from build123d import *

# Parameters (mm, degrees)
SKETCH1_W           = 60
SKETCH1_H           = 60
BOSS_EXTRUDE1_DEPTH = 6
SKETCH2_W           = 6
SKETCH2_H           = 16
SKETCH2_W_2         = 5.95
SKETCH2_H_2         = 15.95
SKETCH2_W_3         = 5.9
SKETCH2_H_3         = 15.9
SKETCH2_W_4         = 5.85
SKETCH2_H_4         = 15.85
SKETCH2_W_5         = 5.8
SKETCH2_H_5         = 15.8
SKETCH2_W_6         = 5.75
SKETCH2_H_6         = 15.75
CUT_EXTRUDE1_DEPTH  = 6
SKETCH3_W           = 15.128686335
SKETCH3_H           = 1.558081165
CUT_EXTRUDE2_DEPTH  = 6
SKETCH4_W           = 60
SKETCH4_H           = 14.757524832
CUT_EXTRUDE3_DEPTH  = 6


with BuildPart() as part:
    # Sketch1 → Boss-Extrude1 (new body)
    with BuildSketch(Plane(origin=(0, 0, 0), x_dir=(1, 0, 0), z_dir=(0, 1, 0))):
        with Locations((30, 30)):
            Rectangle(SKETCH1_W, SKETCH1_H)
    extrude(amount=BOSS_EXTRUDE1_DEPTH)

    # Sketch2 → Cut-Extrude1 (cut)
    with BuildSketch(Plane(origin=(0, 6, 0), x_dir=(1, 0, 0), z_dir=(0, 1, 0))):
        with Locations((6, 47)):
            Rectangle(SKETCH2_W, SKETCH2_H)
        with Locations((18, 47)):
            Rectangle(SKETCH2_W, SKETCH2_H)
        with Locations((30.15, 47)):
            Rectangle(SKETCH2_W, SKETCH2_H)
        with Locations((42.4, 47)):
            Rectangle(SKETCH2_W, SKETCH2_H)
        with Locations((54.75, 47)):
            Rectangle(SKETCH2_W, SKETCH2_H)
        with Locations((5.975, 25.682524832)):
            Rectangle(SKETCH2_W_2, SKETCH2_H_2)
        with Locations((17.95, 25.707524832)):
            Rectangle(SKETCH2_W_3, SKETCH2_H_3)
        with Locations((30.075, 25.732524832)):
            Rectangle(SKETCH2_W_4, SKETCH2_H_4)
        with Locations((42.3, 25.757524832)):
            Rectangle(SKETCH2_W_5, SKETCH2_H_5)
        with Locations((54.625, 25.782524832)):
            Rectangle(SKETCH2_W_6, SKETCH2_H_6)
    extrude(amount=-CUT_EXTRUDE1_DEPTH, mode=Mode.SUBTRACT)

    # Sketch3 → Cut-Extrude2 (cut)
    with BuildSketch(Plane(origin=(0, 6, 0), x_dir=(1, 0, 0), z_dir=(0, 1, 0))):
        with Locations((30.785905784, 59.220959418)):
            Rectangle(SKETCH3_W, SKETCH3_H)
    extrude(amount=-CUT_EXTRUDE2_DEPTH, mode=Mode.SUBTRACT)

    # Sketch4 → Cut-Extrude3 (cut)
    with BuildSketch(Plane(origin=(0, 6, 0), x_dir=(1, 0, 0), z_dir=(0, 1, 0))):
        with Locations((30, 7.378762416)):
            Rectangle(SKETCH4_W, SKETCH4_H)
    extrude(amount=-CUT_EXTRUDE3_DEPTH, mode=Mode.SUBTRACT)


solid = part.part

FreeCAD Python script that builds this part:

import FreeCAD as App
import Part
import Sketcher
Q = App.Units.Quantity


def add_polygon(sketch, points):
    """Adds a closed chain of lines whose ends are joined by coincident constraints."""
    first, n = sketch.GeometryCount, len(points)
    for a, b in zip(points, points[1:] + points[:1]):
        sketch.addGeometry(Part.LineSegment(App.Vector(*a, 0), App.Vector(*b, 0)), False)
    for i in range(n):
        sketch.addConstraint(Sketcher.Constraint("Coincident", first + i, 2, first + (i + 1) % n, 1))

doc = App.newDocument("Part")
body = doc.addObject("PartDesign::Body", "Body")

sketch1 = doc.addObject("Sketcher::SketchObject", "Sketch")
body.addObject(sketch1)
sketch1.AttachmentSupport = (doc.XZ_Plane, [""])
sketch1.MapMode = "FlatFace"
add_polygon(sketch1, [(0, -60), (0, 0), (60, 0), (60, -60)])
sketch1.addConstraint([
    Sketcher.Constraint("Vertical", 0),
    Sketcher.Constraint("Horizontal", 1),
    Sketcher.Constraint("Vertical", 2),
    Sketcher.Constraint("Horizontal", 3),
    Sketcher.Constraint("Coincident", 0, 2, -1, 1),
    Sketcher.Constraint("Equal", 3, 0),
    Sketcher.Constraint("DistanceX", 1, 1, 1, 2, Q("60 mm")),
])
pad1 = doc.addObject("PartDesign::Pad", "Pad")
body.addObject(pad1)
pad1.Profile = sketch1
pad1.Length = 6
pad1.Reversed = True

sketch2 = doc.addObject("Sketcher::SketchObject", "Sketch001")
body.addObject(sketch2)
sketch2.AttachmentSupport = (doc.XZ_Plane, [""])
sketch2.MapMode = "FlatFace"
sketch2.AttachmentOffset = App.Placement(App.Vector(0, 0, -6), App.Rotation())
add_polygon(sketch2, [(3, -55), (3, -39), (9, -39), (9, -55)])
add_polygon(sketch2, [(15, -55), (15, -39), (21, -39), (21, -55)])
add_polygon(sketch2, [(27.15, -55), (27.15, -39), (33.15, -39), (33.15, -55)])
add_polygon(sketch2, [(39.4, -55), (39.4, -39), (45.4, -39), (45.4, -55)])
add_polygon(sketch2, [(51.75, -55), (51.75, -39), (57.75, -39), (57.75, -55)])
add_polygon(sketch2, [(3, -33.657525), (3, -17.707525), (8.95, -17.707525), (8.95, -33.657525)])
add_polygon(sketch2, [(15, -33.657525), (15, -17.757525), (20.9, -17.757525), (20.9, -33.657525)])
add_polygon(sketch2, [(27.15, -33.657525), (27.15, -17.807525), (33, -17.807525), (33, -33.657525)])
add_polygon(sketch2, [(39.4, -33.657525), (39.4, -17.857525), (45.2, -17.857525), (45.2, -33.657525)])
add_polygon(sketch2, [(51.75, -33.657525), (51.75, -17.907525), (57.5, -17.907525), (57.5, -33.657525)])
sketch2.addConstraint([
    Sketcher.Constraint("Vertical", 0),
    Sketcher.Constraint("Horizontal", 1),
    Sketcher.Constraint("Vertical", 2),
    Sketcher.Constraint("Horizontal", 3),
    Sketcher.Constraint("Vertical", 4),
    Sketcher.Constraint("Horizontal", 5),
    Sketcher.Constraint("Vertical", 6),
    Sketcher.Constraint("Horizontal", 7),
    Sketcher.Constraint("Vertical", 8),
    Sketcher.Constraint("Horizontal", 9),
    Sketcher.Constraint("Vertical", 10),
    Sketcher.Constraint("Horizontal", 11),
    Sketcher.Constraint("Vertical", 12),
    Sketcher.Constraint("Horizontal", 13),
    Sketcher.Constraint("Vertical", 14),
    Sketcher.Constraint("Horizontal", 15),
    Sketcher.Constraint("Vertical", 16),
    Sketcher.Constraint("Horizontal", 17),
    Sketcher.Constraint("Vertical", 18),
    Sketcher.Constraint("Horizontal", 19),
    Sketcher.Constraint("Vertical", 20),
    Sketcher.Constraint("Horizontal", 21),
    Sketcher.Constraint("Vertical", 22),
    Sketcher.Constraint("Horizontal", 23),
    Sketcher.Constraint("Vertical", 24),
    Sketcher.Constraint("Horizontal", 25),
    Sketcher.Constraint("Vertical", 26),
    Sketcher.Constraint("Horizontal", 27),
    Sketcher.Constraint("Vertical", 28),
    Sketcher.Constraint("Horizontal", 29),
    Sketcher.Constraint("Vertical", 30),
    Sketcher.Constraint("Horizontal", 31),
    Sketcher.Constraint("Vertical", 32),
    Sketcher.Constraint("Horizontal", 33),
    Sketcher.Constraint("Vertical", 34),
    Sketcher.Constraint("Horizontal", 35),
    Sketcher.Constraint("Vertical", 36),
    Sketcher.Constraint("Horizontal", 37),
    Sketcher.Constraint("Vertical", 38),
    Sketcher.Constraint("Horizontal", 39),
    Sketcher.Constraint("Horizontal", 1, 2, 4, 2),
    Sketcher.Constraint("Horizontal", 3, 2, 6, 2),
    Sketcher.Constraint("Horizontal", 5, 2, 8, 2),
    Sketcher.Constraint("Horizontal", 7, 2, 10, 2),
    Sketcher.Constraint("Horizontal", 9, 2, 12, 2),
    Sketcher.Constraint("Horizontal", 11, 2, 14, 2),
    Sketcher.Constraint("Horizontal", 13, 2, 16, 2),
    Sketcher.Constraint("Horizontal", 15, 2, 18, 2),
    Sketcher.Constraint("Horizontal", 23, 2, 26, 2),
    Sketcher.Constraint("Horizontal", 27, 2, 30, 2),
    Sketcher.Constraint("Horizontal", 31, 2, 34, 2),
    Sketcher.Constraint("Horizontal", 35, 2, 38, 2),
    Sketcher.Constraint("Vertical", 3, 2, 20, 2),
    Sketcher.Constraint("Vertical", 7, 2, 24, 2),
    Sketcher.Constraint("Vertical", 11, 2, 28, 2),
    Sketcher.Constraint("Vertical", 15, 2, 32, 2),
    Sketcher.Constraint("Vertical", 19, 2, 36, 2),
    Sketcher.Constraint("Equal", 3, 5),
    Sketcher.Constraint("Equal", 7, 9),
    Sketcher.Constraint("Equal", 11, 13),
    Sketcher.Constraint("Equal", 15, 17),
    Sketcher.Constraint("DistanceX", 1, 1, 1, 2, Q("6 mm")),
    Sketcher.Constraint("DistanceY", 0, 1, 0, 2, Q("16 mm")),
    Sketcher.Constraint("DistanceX", 25, 1, 25, 2, Q("5.9 mm")),
    Sketcher.Constraint("DistanceX", 33, 1, 33, 2, Q("5.8 mm")),
    Sketcher.Constraint("DistanceY", 24, 1, 24, 2, Q("15.9 mm")),
    Sketcher.Constraint("DistanceY", 32, 1, 32, 2, Q("15.8 mm")),
    Sketcher.Constraint("DistanceX", -1, 1, 0, 2, Q("3 mm")),
    Sketcher.Constraint("DistanceY", 0, 2, -1, 1, Q("39 mm")),
    Sketcher.Constraint("DistanceX", -1, 1, 4, 2, Q("15 mm")),
    Sketcher.Constraint("DistanceX", -1, 1, 29, 2, Q("33 mm")),
    Sketcher.Constraint("DistanceX", 21, 1, 21, 2, Q("5.95 mm")),
    Sketcher.Constraint("DistanceX", 29, 1, 29, 2, Q("5.85 mm")),
    Sketcher.Constraint("DistanceX", 37, 1, 37, 2, Q("5.75 mm")),
    Sketcher.Constraint("DistanceY", 20, 1, 20, 2, Q("15.95 mm")),
    Sketcher.Constraint("DistanceY", 28, 1, 28, 2, Q("15.85 mm")),
    Sketcher.Constraint("DistanceY", 36, 1, 36, 2, Q("15.75 mm")),
    Sketcher.Constraint("DistanceX", -1, 1, 12, 2, Q("39.4 mm")),
    Sketcher.Constraint("DistanceX", -1, 1, 37, 2, Q("57.5 mm")),
    Sketcher.Constraint("DistanceY", 20, 2, -1, 1, Q("17.707525 mm")),
])
pocket1 = doc.addObject("PartDesign::Pocket", "Pocket")
body.addObject(pocket1)
pocket1.Profile = sketch2
pocket1.Length = 6
pocket1.Reversed = True

sketch3 = doc.addObject("Sketcher::SketchObject", "Sketch002")
body.addObject(sketch3)
sketch3.AttachmentSupport = (doc.XZ_Plane, [""])
sketch3.MapMode = "FlatFace"
sketch3.AttachmentOffset = App.Placement(App.Vector(0, 0, -6), App.Rotation())
add_polygon(sketch3, [(23.221563, -60), (23.221563, -58.441919), (38.350249, -58.441919), (38.350249, -60)])
sketch3.addConstraint([
    Sketcher.Constraint("Vertical", 0),
    Sketcher.Constraint("Horizontal", 1),
    Sketcher.Constraint("Vertical", 2),
    Sketcher.Constraint("Horizontal", 3),
    Sketcher.Constraint("DistanceY", 2, 2, -1, 1, Q("60 mm")),
    Sketcher.Constraint("DistanceY", 0, 1, 0, 2, Q("1.558081 mm")),
    Sketcher.Constraint("DistanceX", 1, 1, 1, 2, Q("15.128686 mm")),
    Sketcher.Constraint("DistanceX", -1, 1, 1, 2, Q("38.350249 mm")),
])
pocket2 = doc.addObject("PartDesign::Pocket", "Pocket001")
body.addObject(pocket2)
pocket2.Profile = sketch3
pocket2.Length = 6
pocket2.Reversed = True

sketch4 = doc.addObject("Sketcher::SketchObject", "Sketch003")
body.addObject(sketch4)
sketch4.AttachmentSupport = (doc.XZ_Plane, [""])
sketch4.MapMode = "FlatFace"
sketch4.AttachmentOffset = App.Placement(App.Vector(0, 0, -6), App.Rotation())
add_polygon(sketch4, [(0, -14.757525), (0, 0), (60, 0), (60, -14.757525)])
sketch4.addConstraint([
    Sketcher.Constraint("Vertical", 0),
    Sketcher.Constraint("Horizontal", 1),
    Sketcher.Constraint("Vertical", 2),
    Sketcher.Constraint("Horizontal", 3),
    Sketcher.Constraint("Coincident", 0, 2, -1, 1),
    Sketcher.Constraint("DistanceX", 1, 1, 1, 2, Q("60 mm")),
    Sketcher.Constraint("DistanceY", 0, 1, 0, 2, Q("14.757525 mm")),
])
pocket3 = doc.addObject("PartDesign::Pocket", "Pocket002")
body.addObject(pocket3)
pocket3.Profile = sketch4
pocket3.Length = 6
pocket3.Reversed = True

doc.recompute()
